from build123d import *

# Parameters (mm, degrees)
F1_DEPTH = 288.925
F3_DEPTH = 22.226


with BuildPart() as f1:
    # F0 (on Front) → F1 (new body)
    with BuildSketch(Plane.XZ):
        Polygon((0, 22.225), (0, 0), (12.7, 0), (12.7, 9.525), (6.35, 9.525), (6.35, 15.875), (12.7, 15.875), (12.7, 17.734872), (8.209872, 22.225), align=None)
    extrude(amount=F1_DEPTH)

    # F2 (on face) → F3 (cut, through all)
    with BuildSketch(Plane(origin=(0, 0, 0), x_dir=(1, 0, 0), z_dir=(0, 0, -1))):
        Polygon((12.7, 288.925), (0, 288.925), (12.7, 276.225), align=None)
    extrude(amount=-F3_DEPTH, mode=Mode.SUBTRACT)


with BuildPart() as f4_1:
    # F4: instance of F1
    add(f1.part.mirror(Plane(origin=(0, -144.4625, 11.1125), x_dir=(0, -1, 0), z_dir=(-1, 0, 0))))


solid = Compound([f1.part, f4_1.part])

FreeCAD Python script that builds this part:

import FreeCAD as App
import Part
import Sketcher
Q = App.Units.Quantity

doc = App.newDocument("Part")
params = doc.addObject("Spreadsheet::Sheet", "Params")
for row, (alias, value) in enumerate([
    ("sketch1_width", "0.5 in"),
    ("sketch1_width2", "0.25 in"),
    ("sketch1_length", "0.25 in"),
    ("sketch1_height", "0.875 in"),
    ("pad1_length", "11.375 in"),
    ("sketch2_width", "0.5 in"),
], start=1):
    params.set(f"A{row}", alias)
    params.set(f"B{row}", "=" + value)
    params.setAlias(f"B{row}", alias)

body = doc.addObject("PartDesign::Body", "Body")

sketch1 = body.newObject("Sketcher::SketchObject", "Sketch")
sketch1.AttachmentSupport = (doc.getObject("XZ_Plane"), [""])
sketch1.MapMode = "FlatFace"
sketch1.addGeometry([
    Part.LineSegment(App.Vector(0, 22.2, 0), App.Vector(0, 0, 0)),
    Part.LineSegment(App.Vector(0, 0, 0), App.Vector(12.7, 0, 0)),
    Part.LineSegment(App.Vector(12.7, 0, 0), App.Vector(12.7, 9.5, 0)),
    Part.LineSegment(App.Vector(12.7, 9.5, 0), App.Vector(6.3, 9.5, 0)),
    Part.LineSegment(App.Vector(6.3, 9.5, 0), App.Vector(6.3, 15.9, 0)),
    Part.LineSegment(App.Vector(6.3, 15.9, 0), App.Vector(12.7, 15.9, 0)),
    Part.LineSegment(App.Vector(12.7, 15.9, 0), App.Vector(12.7, 17.7, 0)),
    Part.LineSegment(App.Vector(12.7, 17.7, 0), App.Vector(8.2, 22.2, 0)),
    Part.LineSegment(App.Vector(8.2, 22.2, 0), App.Vector(0, 22.2, 0)),
], False)
sketch1.addConstraint([
    Sketcher.Constraint("Coincident", 0, 2, 1, 1),
    Sketcher.Constraint("Coincident", 1, 2, 2, 1),
    Sketcher.Constraint("Coincident", 2, 2, 3, 1),
    Sketcher.Constraint("Coincident", 3, 2, 4, 1),
    Sketcher.Constraint("Coincident", 4, 2, 5, 1),
    Sketcher.Constraint("Coincident", 5, 2, 6, 1),
    Sketcher.Constraint("Coincident", 6, 2, 7, 1),
    Sketcher.Constraint("Coincident", 7, 2, 8, 1),
    Sketcher.Constraint("Coincident", 8, 2, 0, 1),
    Sketcher.Constraint("Vertical", 0),
    Sketcher.Constraint("Horizontal", 1),
    Sketcher.Constraint("Vertical", 2),
    Sketcher.Constraint("Horizontal", 3),
    Sketcher.Constraint("Vertical", 4),
    Sketcher.Constraint("Horizontal", 5),
    Sketcher.Constraint("Vertical", 6),
    Sketcher.Constraint("Horizontal", 8),
    Sketcher.Constraint("Coincident", 0, 2, -1, 1),
    Sketcher.Constraint("Vertical", 2, 2, 5, 2),
    Sketcher.Constraint("Equal", 5, 4),
    Sketcher.Constraint("DistanceX", 1, 1, 1, 2, Q("0.5 in")),
    Sketcher.Constraint("Angle", 7, Q("135 deg")),
    Sketcher.Constraint("DistanceX", 3, 2, 3, 1, Q("0.25 in")),
    Sketcher.Constraint("DistanceY", 3, 2, 7, 2, Q("0.5 in")),
    Sketcher.Constraint("Distance", 7, Q("0.25 in")),
    Sketcher.Constraint("DistanceY", 0, 2, 0, 1, Q("0.875 in")),
])
sketch1.setExpression("Constraints[20]", "Params.sketch1_width")
sketch1.setExpression("Constraints[22]", "Params.sketch1_width2")
sketch1.setExpression("Constraints[24]", "Params.sketch1_length")
sketch1.setExpression("Constraints[25]", "Params.sketch1_height")
pad1 = body.newObject("PartDesign::Pad", "Pad")
pad1.Profile = sketch1
pad1.setExpression("Length", "Params.pad1_length")

sketch2 = body.newObject("Sketcher::SketchObject", "Sketch001")
sketch2.AttachmentSupport = (doc.getObject("XY_Plane"), [""])
sketch2.MapMode = "FlatFace"
sketch2.addGeometry([
    Part.LineSegment(App.Vector(13, -289, 0), App.Vector(0, -289, 0)),
    Part.LineSegment(App.Vector(0, -289, 0), App.Vector(13, -276, 0)),
    Part.LineSegment(App.Vector(13, -276, 0), App.Vector(13, -289, 0)),
], False)
sketch2.addConstraint([
    Sketcher.Constraint("Coincident", 0, 2, 1, 1),
    Sketcher.Constraint("Coincident", 1, 2, 2, 1),
    Sketcher.Constraint("Coincident", 2, 2, 0, 1),
    Sketcher.Constraint("Horizontal", 0),
    Sketcher.Constraint("Vertical", 2),
    Sketcher.Constraint("PointOnObject", 0, 2, -2),
    Sketcher.Constraint("Equal", 0, 2),
    Sketcher.Constraint("DistanceX", 0, 2, 0, 1, Q("0.5 in")),
    Sketcher.Constraint("DistanceY", 0, 2, -1, 1, Q("11.375 in")),
])
sketch2.setExpression("Constraints[7]", "Params.sketch2_width")
pocket1 = body.newObject("PartDesign::Pocket", "Pocket")
pocket1.Profile = sketch2
pocket1.Type = "ThroughAll"
pocket1.Reversed = True
body2 = doc.addObject("PartDesign::Body", "Body001")
doc.recompute()

mirroring = doc.addObject("Part::Mirroring", "Mirroring")
mirroring.Source = body
mirroring.Base = App.Vector(0, -144.4625, 11.1125)
mirroring.Normal = App.Vector(-1, 0, 0)
body2.BaseFeature = mirroring
doc.recompute()
mirroring.Visibility = False

doc.recompute()
